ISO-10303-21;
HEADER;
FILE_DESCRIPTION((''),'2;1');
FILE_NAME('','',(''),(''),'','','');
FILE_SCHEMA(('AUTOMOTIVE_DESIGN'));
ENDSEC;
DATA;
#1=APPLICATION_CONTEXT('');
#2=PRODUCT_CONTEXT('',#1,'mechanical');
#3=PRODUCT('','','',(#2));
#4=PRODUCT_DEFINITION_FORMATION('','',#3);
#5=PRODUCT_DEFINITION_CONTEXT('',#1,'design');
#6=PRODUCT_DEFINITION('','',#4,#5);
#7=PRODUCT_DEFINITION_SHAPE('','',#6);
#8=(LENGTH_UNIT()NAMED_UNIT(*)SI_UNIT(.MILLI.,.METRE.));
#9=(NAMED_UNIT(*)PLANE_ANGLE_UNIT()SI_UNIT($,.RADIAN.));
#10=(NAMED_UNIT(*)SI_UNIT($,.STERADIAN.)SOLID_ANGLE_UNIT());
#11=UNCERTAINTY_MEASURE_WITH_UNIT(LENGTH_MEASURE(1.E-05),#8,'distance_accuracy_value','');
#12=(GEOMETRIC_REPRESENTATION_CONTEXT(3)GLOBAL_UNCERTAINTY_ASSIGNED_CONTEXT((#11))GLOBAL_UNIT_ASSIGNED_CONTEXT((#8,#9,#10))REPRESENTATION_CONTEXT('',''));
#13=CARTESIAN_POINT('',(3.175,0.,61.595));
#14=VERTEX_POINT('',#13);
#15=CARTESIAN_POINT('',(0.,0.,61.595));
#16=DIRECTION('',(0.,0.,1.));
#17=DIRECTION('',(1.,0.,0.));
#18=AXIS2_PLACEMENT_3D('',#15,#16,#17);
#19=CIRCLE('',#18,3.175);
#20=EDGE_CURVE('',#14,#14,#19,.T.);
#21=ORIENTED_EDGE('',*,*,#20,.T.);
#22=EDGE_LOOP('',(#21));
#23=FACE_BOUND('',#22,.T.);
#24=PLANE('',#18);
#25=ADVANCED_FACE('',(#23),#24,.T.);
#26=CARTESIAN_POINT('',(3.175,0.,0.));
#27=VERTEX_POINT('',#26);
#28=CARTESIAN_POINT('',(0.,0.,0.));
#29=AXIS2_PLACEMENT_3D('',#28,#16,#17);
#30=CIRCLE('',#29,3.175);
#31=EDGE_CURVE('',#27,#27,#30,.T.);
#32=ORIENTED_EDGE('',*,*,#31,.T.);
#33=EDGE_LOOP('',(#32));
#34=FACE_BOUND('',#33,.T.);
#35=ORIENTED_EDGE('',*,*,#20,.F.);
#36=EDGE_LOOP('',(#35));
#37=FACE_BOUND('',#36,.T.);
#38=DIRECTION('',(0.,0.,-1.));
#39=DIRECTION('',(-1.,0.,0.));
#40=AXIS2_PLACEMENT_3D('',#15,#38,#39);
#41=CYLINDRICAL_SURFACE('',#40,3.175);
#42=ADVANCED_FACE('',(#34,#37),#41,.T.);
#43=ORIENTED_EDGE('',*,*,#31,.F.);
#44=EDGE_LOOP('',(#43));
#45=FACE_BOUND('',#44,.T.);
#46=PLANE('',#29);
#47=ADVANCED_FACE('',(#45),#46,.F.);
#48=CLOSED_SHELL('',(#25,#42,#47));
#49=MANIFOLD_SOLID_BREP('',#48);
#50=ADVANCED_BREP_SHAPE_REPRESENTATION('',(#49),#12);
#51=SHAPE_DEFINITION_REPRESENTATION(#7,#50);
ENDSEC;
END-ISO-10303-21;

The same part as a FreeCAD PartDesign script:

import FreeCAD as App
import Part
import Sketcher
Q = App.Units.Quantity

doc = App.newDocument("Part")
body = doc.addObject("PartDesign::Body", "Body")

sketch1 = body.newObject("Sketcher::SketchObject", "Sketch")
sketch1.AttachmentSupport = (doc.getObject("XY_Plane"), [""])
sketch1.MapMode = "FlatFace"
sketch1.addGeometry(Part.Circle(App.Vector(0, 0, 0), App.Vector(0, 0, 1), 3.2), False)
sketch1.addConstraint(Sketcher.Constraint("Coincident", 0, 3, -1, 1))
sketch1.addConstraint(Sketcher.Constraint("Diameter", 0, Q("0.25 in")))
pad1 = body.newObject("PartDesign::Pad", "Pad")
pad1.Profile = sketch1
pad1.Length = Q("2.425 in")

doc.recompute()
